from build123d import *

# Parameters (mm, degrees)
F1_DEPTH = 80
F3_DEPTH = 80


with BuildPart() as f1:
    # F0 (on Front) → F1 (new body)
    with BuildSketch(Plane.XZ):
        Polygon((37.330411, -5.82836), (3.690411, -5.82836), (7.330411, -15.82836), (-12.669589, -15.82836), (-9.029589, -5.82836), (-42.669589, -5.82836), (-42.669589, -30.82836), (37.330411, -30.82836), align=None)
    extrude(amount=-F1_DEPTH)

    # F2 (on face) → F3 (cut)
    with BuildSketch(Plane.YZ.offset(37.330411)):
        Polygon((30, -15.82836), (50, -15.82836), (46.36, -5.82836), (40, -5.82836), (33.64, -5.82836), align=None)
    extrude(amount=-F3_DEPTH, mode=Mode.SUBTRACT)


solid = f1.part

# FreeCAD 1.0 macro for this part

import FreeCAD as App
import Part
import Sketcher
from FreeCAD import Vector

doc = App.newDocument("Part")
params = doc.addObject("Spreadsheet::Sheet", "Params")
for row, (alias, value) in enumerate([
    ("sketch1_width", "20 mm"),
    ("sketch1_width2", "80 mm"),
    ("sketch1_height", "25 mm"),
    ("sketch1_width3", "33.64 mm"),
    ("pad1_length", "80 mm"),
    ("sketch2_width", "20 mm"),
    ("sketch2_width2", "12.72 mm"),
    ("pocket1_length", "80 mm"),
], start=1):
    params.set(f"A{row}", alias)
    params.set(f"B{row}", "=" + value)
    params.setAlias(f"B{row}", alias)

body = doc.addObject("PartDesign::Body", "Body")

sketch1 = body.newObject("Sketcher::SketchObject", "Sketch")
sketch1.AttachmentSupport = (doc.getObject("XZ_Plane"), [""])
sketch1.MapMode = "FlatFace"
sketch1.addGeometry([
    Part.LineSegment(Vector(37, -6, 0), Vector(4, -6, 0)),
    Part.LineSegment(Vector(4, -6, 0), Vector(7, -16, 0)),
    Part.LineSegment(Vector(7, -16, 0), Vector(-13, -16, 0)),
    Part.LineSegment(Vector(-13, -16, 0), Vector(-9, -6, 0)),
    Part.LineSegment(Vector(-9, -6, 0), Vector(-43, -6, 0)),
    Part.LineSegment(Vector(-43, -6, 0), Vector(-43, -31, 0)),
    Part.LineSegment(Vector(-43, -31, 0), Vector(37, -31, 0)),
    Part.LineSegment(Vector(37, -31, 0), Vector(37, -6, 0)),
], False)
sketch1.addConstraint([
    Sketcher.Constraint("Coincident", 0, 2, 1, 1),
    Sketcher.Constraint("Coincident", 1, 2, 2, 1),
    Sketcher.Constraint("Coincident", 2, 2, 3, 1),
    Sketcher.Constraint("Coincident", 3, 2, 4, 1),
    Sketcher.Constraint("Coincident", 4, 2, 5, 1),
    Sketcher.Constraint("Coincident", 5, 2, 6, 1),
    Sketcher.Constraint("Coincident", 6, 2, 7, 1),
    Sketcher.Constraint("Coincident", 7, 2, 0, 1),
    Sketcher.Constraint("Horizontal", 0),
    Sketcher.Constraint("Horizontal", 2),
    Sketcher.Constraint("Horizontal", 4),
    Sketcher.Constraint("Vertical", 5),
    Sketcher.Constraint("Horizontal", 6),
    Sketcher.Constraint("Vertical", 7),
    Sketcher.Constraint("Horizontal", 0, 2, 3, 2),
    Sketcher.Constraint("Equal", 0, 4),
    Sketcher.Constraint("Equal", 1, 3),
    Sketcher.Constraint("DistanceX", 2, 2, 2, 1, 20.0),
    Sketcher.Constraint("DistanceX", 6, 1, 6, 2, 80.0),
    Sketcher.Constraint("DistanceY", 5, 2, 5, 1, 25.0),
    Sketcher.Constraint("DistanceY", 1, 2, 0, 2, 10.0),
    Sketcher.Constraint("DistanceX", 0, 2, 0, 1, 33.64),
    Sketcher.Constraint("DistanceX", -1, 1, 0, 2, 3.690411),
    Sketcher.Constraint("DistanceY", 0, 2, -1, 1, 5.82836),
])
sketch1.setExpression("Constraints[17]", "Params.sketch1_width")
sketch1.setExpression("Constraints[18]", "Params.sketch1_width2")
sketch1.setExpression("Constraints[19]", "Params.sketch1_height")
sketch1.setExpression("Constraints[21]", "Params.sketch1_width3")
pad1 = body.newObject("PartDesign::Pad", "Pad")
pad1.Profile = sketch1
pad1.setExpression("Length", "Params.pad1_length")
pad1.Reversed = True

sketch2 = body.newObject("Sketcher::SketchObject", "Sketch001")
sketch2.AttachmentSupport = (doc.getObject("YZ_Plane"), [""])
sketch2.MapMode = "FlatFace"
sketch2.AttachmentOffset = App.Placement(Vector(0, 0, 37.330411), App.Rotation())
sketch2.addGeometry([
    Part.LineSegment(Vector(30, -16, 0), Vector(50, -16, 0)),
    Part.LineSegment(Vector(50, -16, 0), Vector(46, -6, 0)),
    Part.LineSegment(Vector(46, -6, 0), Vector(34, -6, 0)),
    Part.LineSegment(Vector(34, -6, 0), Vector(30, -16, 0)),
], False)
sketch2.addConstraint([
    Sketcher.Constraint("Coincident", 0, 2, 1, 1),
    Sketcher.Constraint("Coincident", 1, 2, 2, 1),
    Sketcher.Constraint("Coincident", 2, 2, 3, 1),
    Sketcher.Constraint("Coincident", 3, 2, 0, 1),
    Sketcher.Constraint("Horizontal", 0),
    Sketcher.Constraint("Horizontal", 2),
    Sketcher.Constraint("Equal", 1, 3),
    Sketcher.Constraint("DistanceX", 0, 1, 0, 2, 20.0),
    Sketcher.Constraint("DistanceX", -1, 1, 0, 2, 50.0),
    Sketcher.Constraint("DistanceY", 0, 2, 1, 2, 10.0),
    Sketcher.Constraint("DistanceX", 2, 2, 2, 1, 12.72),
    Sketcher.Constraint("DistanceY", 0, 2, -1, 1, 15.82836),
])
sketch2.setExpression("Constraints[7]", "Params.sketch2_width")
sketch2.setExpression("Constraints[10]", "Params.sketch2_width2")
pocket1 = body.newObject("PartDesign::Pocket", "Pocket")
pocket1.Profile = sketch2
pocket1.setExpression("Length", "Params.pocket1_length")

doc.recompute()
